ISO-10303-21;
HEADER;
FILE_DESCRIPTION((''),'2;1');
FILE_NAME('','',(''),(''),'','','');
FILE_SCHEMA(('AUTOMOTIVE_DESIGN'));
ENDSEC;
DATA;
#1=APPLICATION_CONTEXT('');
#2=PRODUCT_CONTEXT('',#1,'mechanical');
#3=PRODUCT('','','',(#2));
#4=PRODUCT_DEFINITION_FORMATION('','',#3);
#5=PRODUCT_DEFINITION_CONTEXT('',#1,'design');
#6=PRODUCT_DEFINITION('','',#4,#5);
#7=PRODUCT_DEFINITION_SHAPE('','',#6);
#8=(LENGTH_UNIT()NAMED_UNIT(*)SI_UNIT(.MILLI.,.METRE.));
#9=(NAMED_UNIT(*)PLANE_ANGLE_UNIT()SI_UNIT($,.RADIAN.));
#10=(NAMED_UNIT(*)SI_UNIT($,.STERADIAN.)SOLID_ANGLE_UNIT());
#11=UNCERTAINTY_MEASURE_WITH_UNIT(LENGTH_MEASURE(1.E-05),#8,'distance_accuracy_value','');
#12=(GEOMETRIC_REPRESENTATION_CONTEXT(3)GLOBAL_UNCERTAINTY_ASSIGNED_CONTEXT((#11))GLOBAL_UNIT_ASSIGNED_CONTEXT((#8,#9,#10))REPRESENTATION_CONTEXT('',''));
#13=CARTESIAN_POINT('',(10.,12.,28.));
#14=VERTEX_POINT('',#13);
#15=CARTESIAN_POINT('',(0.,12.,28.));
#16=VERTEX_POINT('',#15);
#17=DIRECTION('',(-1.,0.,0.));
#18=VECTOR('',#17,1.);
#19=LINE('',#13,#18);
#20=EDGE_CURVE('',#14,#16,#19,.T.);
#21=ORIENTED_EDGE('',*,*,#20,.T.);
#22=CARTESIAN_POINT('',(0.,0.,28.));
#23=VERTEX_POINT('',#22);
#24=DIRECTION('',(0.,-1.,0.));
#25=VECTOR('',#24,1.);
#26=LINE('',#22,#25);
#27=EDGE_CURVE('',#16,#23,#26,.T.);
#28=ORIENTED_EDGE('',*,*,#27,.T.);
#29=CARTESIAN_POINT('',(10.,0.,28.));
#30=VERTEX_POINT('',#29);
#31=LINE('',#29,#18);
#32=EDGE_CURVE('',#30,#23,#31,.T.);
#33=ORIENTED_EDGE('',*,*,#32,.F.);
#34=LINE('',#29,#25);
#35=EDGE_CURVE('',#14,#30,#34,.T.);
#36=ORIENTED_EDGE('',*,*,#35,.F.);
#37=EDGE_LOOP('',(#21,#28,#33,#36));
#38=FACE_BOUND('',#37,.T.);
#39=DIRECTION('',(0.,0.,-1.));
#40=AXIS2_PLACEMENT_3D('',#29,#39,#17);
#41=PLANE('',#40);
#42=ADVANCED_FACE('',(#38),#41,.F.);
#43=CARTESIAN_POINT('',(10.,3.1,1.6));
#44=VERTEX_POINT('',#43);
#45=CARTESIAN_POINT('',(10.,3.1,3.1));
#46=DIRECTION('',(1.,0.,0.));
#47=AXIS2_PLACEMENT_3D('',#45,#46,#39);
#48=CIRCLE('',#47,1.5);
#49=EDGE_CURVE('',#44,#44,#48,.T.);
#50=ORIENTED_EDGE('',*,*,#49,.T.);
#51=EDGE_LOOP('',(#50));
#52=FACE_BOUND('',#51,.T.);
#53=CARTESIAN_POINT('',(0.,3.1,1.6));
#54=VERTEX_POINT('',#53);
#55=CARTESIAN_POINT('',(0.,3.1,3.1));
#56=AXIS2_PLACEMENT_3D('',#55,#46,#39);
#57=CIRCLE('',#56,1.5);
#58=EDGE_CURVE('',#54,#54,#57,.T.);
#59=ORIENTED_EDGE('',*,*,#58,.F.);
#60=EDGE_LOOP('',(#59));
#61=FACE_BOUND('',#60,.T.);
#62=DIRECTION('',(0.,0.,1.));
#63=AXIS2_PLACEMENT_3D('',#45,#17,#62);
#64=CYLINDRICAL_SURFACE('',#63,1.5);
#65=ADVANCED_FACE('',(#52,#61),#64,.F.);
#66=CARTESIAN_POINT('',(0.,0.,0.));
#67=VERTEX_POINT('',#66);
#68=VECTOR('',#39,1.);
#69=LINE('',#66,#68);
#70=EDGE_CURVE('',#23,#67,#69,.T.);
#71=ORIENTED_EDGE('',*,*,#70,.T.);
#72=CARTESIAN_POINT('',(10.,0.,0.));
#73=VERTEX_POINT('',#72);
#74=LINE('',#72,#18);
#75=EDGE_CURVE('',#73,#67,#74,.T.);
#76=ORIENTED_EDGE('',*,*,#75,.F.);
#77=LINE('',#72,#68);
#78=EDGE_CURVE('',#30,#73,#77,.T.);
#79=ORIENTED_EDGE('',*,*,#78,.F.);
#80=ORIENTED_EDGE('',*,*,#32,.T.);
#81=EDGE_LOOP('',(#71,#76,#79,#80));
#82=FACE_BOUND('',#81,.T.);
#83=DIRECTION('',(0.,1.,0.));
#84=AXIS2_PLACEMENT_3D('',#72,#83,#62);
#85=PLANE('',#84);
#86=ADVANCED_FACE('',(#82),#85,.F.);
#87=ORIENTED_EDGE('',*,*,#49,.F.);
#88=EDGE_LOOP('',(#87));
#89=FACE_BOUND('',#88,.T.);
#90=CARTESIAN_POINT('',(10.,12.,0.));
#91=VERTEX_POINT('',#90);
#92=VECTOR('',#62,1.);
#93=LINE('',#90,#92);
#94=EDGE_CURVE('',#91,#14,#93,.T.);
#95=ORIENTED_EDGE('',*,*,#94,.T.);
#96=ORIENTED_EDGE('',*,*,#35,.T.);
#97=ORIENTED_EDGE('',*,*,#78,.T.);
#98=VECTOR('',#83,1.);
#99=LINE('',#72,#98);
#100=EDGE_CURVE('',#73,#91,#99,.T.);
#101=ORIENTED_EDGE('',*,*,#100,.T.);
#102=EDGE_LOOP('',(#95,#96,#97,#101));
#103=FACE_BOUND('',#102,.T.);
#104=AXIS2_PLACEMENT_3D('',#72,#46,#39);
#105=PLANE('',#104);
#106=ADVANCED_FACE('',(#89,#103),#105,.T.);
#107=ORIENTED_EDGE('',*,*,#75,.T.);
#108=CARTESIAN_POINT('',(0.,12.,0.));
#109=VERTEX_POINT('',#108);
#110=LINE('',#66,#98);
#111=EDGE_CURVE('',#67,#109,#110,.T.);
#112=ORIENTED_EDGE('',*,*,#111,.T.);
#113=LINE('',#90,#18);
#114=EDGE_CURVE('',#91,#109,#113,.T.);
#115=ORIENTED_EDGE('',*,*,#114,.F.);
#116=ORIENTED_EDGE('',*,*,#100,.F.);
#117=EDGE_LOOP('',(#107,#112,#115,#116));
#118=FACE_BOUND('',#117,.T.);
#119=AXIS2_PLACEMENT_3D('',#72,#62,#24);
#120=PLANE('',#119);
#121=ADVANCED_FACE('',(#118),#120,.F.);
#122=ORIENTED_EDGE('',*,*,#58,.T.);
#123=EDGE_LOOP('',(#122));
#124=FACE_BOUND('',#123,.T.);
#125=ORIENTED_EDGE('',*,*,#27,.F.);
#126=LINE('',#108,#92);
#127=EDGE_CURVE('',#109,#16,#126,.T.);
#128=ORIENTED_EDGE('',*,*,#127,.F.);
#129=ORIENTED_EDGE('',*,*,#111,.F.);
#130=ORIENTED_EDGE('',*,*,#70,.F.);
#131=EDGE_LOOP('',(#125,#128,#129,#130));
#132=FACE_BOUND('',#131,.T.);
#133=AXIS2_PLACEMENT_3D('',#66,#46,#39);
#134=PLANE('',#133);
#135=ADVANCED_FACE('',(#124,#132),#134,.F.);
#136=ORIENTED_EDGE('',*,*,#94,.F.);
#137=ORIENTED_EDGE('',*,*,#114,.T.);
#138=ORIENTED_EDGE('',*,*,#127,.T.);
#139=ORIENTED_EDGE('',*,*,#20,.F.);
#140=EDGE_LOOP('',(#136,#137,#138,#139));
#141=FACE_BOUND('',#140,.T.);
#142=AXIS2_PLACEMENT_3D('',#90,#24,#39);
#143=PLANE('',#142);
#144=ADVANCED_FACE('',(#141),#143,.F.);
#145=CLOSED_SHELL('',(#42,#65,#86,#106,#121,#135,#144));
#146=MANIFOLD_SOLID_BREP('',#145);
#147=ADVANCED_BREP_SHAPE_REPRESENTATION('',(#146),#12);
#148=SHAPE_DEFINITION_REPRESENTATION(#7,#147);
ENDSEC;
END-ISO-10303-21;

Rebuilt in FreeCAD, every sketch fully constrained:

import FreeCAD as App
import Part
import Sketcher

doc = App.newDocument("Part")
body = doc.addObject("PartDesign::Body", "Body")

# Sketch on YZ plane
sketch1 = body.newObject("Sketcher::SketchObject", "Sketch")
sketch1.AttachmentSupport = (doc.getObject("YZ_Plane"), [""])
sketch1.MapMode = "FlatFace"
sketch1.addGeometry([
    Part.LineSegment(App.Vector(12, 28, 0), App.Vector(0, 28, 0)),  # 0
    Part.LineSegment(App.Vector(0, 28, 0), App.Vector(0, 0, 0)),  # 1
    Part.LineSegment(App.Vector(0, 0, 0), App.Vector(12, 0, 0)),  # 2
    Part.LineSegment(App.Vector(12, 0, 0), App.Vector(12, 28, 0)),  # 3
    Part.Circle(App.Vector(3.1, 3.1, 0), App.Vector(0, 0, 1), 1.5),  # 4
], False)
sketch1.addConstraint([
    Sketcher.Constraint("Coincident", 0, 2, 1, 1),
    Sketcher.Constraint("Coincident", 1, 2, 2, 1),
    Sketcher.Constraint("Coincident", 2, 2, 3, 1),
    Sketcher.Constraint("Coincident", 3, 2, 0, 1),
    Sketcher.Constraint("Horizontal", 0),
    Sketcher.Constraint("Vertical", 1),
    Sketcher.Constraint("Horizontal", 2),
    Sketcher.Constraint("Vertical", 3),
    Sketcher.Constraint("Coincident", 1, 2, -1, 1),
    Sketcher.Constraint("Diameter", 4, 3.0),
    Sketcher.Constraint("DistanceX", 0, 2, 0, 1, 12.0),
    Sketcher.Constraint("DistanceY", 1, 2, 1, 1, 28.0),
    Sketcher.Constraint("DistanceX", -1, 1, 4, 3, 3.1),
    Sketcher.Constraint("DistanceY", -1, 1, 4, 3, 3.1),
])
pad1 = body.newObject("PartDesign::Pad", "Pad")
pad1.Profile = sketch1
pad1.Length = 10

doc.recompute()
